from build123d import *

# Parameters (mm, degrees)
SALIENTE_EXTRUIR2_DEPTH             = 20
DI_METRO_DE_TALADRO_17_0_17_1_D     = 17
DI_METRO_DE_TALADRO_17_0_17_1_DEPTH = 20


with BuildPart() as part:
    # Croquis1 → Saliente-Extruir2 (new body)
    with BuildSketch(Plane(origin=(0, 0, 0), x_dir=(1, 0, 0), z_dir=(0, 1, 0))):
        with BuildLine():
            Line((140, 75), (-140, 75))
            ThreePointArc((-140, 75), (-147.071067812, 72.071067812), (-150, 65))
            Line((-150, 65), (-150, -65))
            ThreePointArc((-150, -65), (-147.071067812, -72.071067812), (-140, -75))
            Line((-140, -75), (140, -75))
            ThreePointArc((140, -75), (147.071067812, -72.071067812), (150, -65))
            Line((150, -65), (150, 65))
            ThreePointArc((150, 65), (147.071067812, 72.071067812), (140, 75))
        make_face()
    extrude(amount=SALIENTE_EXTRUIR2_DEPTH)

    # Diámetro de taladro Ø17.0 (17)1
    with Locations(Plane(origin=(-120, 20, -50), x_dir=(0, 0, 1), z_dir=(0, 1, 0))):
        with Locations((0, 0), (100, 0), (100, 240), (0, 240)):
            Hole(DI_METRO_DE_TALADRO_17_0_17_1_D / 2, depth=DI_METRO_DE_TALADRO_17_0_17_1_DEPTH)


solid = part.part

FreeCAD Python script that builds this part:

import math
import FreeCAD as App
import Part
import Sketcher
from FreeCAD import Vector
Q = App.Units.Quantity

doc = App.newDocument("Part")
body = doc.addObject("PartDesign::Body", "Body")

# Sketch on XZ plane
sketch1 = doc.addObject("Sketcher::SketchObject", "Sketch")
body.addObject(sketch1)
sketch1.AttachmentSupport = (doc.XZ_Plane, [""])
sketch1.MapMode = "FlatFace"
sketch1.addGeometry(Part.LineSegment(Vector(140, -75, 0), Vector(-140, -75, 0)), False)
sketch1.addGeometry(Part.ArcOfCircle(Part.Circle(Vector(-140, -65, 0), Vector(0, 0, 1), 10), math.radians(180), math.radians(270)), False)
sketch1.addGeometry(Part.LineSegment(Vector(-150, -65, 0), Vector(-150, 65, 0)), False)
sketch1.addGeometry(Part.ArcOfCircle(Part.Circle(Vector(-140, 65, 0), Vector(0, 0, 1), 10), math.radians(90), math.radians(180)), False)
sketch1.addGeometry(Part.LineSegment(Vector(-140, 75, 0), Vector(140, 75, 0)), False)
sketch1.addGeometry(Part.ArcOfCircle(Part.Circle(Vector(140, 65, 0), Vector(0, 0, 1), 10), math.radians(0), math.radians(90)), False)
sketch1.addGeometry(Part.LineSegment(Vector(150, 65, 0), Vector(150, -65, 0)), False)
sketch1.addGeometry(Part.ArcOfCircle(Part.Circle(Vector(140, -65, 0), Vector(0, 0, 1), 10), math.radians(-90), math.radians(0)), False)
sketch1.addConstraint(Sketcher.Constraint("Tangent", 0, 2, 1, 2))
sketch1.addConstraint(Sketcher.Constraint("Tangent", 1, 1, 2, 1))
sketch1.addConstraint(Sketcher.Constraint("Tangent", 2, 2, 3, 2))
sketch1.addConstraint(Sketcher.Constraint("Tangent", 3, 1, 4, 1))
sketch1.addConstraint(Sketcher.Constraint("Tangent", 4, 2, 5, 2))
sketch1.addConstraint(Sketcher.Constraint("Tangent", 5, 1, 6, 1))
sketch1.addConstraint(Sketcher.Constraint("Tangent", 6, 2, 7, 2))
sketch1.addConstraint(Sketcher.Constraint("Tangent", 7, 1, 0, 1))
sketch1.addConstraint(Sketcher.Constraint("Horizontal", 0))
sketch1.addConstraint(Sketcher.Constraint("Vertical", 2))
sketch1.addConstraint(Sketcher.Constraint("Horizontal", 4))
sketch1.addConstraint(Sketcher.Constraint("Vertical", 6))
sketch1.addConstraint(Sketcher.Constraint("Equal", 1, 3))
sketch1.addConstraint(Sketcher.Constraint("Equal", 3, 5))
sketch1.addConstraint(Sketcher.Constraint("Equal", 5, 7))
sketch1.addConstraint(Sketcher.Constraint("Symmetric", 1, 3, 5, 3, -1, 1))
sketch1.addConstraint(Sketcher.Constraint("Radius", 1, Q("10 mm")))
sketch1.addConstraint(Sketcher.Constraint("DistanceX", 0, 2, 0, 1, Q("280 mm")))
sketch1.addConstraint(Sketcher.Constraint("DistanceY", 2, 1, 2, 2, Q("130 mm")))
pad1 = doc.addObject("PartDesign::Pad", "Pad")
body.addObject(pad1)
pad1.Profile = sketch1
pad1.Length = 20
pad1.Reversed = True

# Sketch on XZ plane
sketch2 = doc.addObject("Sketcher::SketchObject", "Sketch001")
body.addObject(sketch2)
sketch2.AttachmentSupport = (doc.XZ_Plane, [""])
sketch2.MapMode = "FlatFace"
sketch2.AttachmentOffset = App.Placement(Vector(0, 0, -20), App.Rotation())
sketch2.addGeometry(Part.Circle(Vector(-120, -50, 0), Vector(0, 0, 1), 8), False)
sketch2.addGeometry(Part.Circle(Vector(-120, 50, 0), Vector(0, 0, 1), 8), False)
sketch2.addGeometry(Part.Circle(Vector(120, 50, 0), Vector(0, 0, 1), 8), False)
sketch2.addGeometry(Part.Circle(Vector(120, -50, 0), Vector(0, 0, 1), 8), False)
sketch2.addConstraint(Sketcher.Constraint("Equal", 0, 1))
sketch2.addConstraint(Sketcher.Constraint("Equal", 1, 2))
sketch2.addConstraint(Sketcher.Constraint("Equal", 2, 3))
sketch2.addConstraint(Sketcher.Constraint("Symmetric", 0, 3, 2, 3, -1, 1))
sketch2.addConstraint(Sketcher.Constraint("Symmetric", 1, 3, 3, 3, -1, 1))
sketch2.addConstraint(Sketcher.Constraint("Symmetric", 1, 3, 2, 3, -2))
sketch2.addConstraint(Sketcher.Constraint("Diameter", 0, Q("17 mm")))
sketch2.addConstraint(Sketcher.Constraint("DistanceX", 0, 3, -1, 1, Q("120 mm")))
sketch2.addConstraint(Sketcher.Constraint("DistanceY", 0, 3, -1, 1, Q("50 mm")))
doc.recompute()
hole = doc.addObject("PartDesign::Hole", "Hole")
body.addObject(hole)
hole.Profile = sketch2
hole.ThreadType = "None"
hole.Diameter = 17
hole.DepthType = "Dimension"
hole.Depth = 20
hole.DrillPoint = "Flat"
hole.Reversed = True

doc.recompute()
